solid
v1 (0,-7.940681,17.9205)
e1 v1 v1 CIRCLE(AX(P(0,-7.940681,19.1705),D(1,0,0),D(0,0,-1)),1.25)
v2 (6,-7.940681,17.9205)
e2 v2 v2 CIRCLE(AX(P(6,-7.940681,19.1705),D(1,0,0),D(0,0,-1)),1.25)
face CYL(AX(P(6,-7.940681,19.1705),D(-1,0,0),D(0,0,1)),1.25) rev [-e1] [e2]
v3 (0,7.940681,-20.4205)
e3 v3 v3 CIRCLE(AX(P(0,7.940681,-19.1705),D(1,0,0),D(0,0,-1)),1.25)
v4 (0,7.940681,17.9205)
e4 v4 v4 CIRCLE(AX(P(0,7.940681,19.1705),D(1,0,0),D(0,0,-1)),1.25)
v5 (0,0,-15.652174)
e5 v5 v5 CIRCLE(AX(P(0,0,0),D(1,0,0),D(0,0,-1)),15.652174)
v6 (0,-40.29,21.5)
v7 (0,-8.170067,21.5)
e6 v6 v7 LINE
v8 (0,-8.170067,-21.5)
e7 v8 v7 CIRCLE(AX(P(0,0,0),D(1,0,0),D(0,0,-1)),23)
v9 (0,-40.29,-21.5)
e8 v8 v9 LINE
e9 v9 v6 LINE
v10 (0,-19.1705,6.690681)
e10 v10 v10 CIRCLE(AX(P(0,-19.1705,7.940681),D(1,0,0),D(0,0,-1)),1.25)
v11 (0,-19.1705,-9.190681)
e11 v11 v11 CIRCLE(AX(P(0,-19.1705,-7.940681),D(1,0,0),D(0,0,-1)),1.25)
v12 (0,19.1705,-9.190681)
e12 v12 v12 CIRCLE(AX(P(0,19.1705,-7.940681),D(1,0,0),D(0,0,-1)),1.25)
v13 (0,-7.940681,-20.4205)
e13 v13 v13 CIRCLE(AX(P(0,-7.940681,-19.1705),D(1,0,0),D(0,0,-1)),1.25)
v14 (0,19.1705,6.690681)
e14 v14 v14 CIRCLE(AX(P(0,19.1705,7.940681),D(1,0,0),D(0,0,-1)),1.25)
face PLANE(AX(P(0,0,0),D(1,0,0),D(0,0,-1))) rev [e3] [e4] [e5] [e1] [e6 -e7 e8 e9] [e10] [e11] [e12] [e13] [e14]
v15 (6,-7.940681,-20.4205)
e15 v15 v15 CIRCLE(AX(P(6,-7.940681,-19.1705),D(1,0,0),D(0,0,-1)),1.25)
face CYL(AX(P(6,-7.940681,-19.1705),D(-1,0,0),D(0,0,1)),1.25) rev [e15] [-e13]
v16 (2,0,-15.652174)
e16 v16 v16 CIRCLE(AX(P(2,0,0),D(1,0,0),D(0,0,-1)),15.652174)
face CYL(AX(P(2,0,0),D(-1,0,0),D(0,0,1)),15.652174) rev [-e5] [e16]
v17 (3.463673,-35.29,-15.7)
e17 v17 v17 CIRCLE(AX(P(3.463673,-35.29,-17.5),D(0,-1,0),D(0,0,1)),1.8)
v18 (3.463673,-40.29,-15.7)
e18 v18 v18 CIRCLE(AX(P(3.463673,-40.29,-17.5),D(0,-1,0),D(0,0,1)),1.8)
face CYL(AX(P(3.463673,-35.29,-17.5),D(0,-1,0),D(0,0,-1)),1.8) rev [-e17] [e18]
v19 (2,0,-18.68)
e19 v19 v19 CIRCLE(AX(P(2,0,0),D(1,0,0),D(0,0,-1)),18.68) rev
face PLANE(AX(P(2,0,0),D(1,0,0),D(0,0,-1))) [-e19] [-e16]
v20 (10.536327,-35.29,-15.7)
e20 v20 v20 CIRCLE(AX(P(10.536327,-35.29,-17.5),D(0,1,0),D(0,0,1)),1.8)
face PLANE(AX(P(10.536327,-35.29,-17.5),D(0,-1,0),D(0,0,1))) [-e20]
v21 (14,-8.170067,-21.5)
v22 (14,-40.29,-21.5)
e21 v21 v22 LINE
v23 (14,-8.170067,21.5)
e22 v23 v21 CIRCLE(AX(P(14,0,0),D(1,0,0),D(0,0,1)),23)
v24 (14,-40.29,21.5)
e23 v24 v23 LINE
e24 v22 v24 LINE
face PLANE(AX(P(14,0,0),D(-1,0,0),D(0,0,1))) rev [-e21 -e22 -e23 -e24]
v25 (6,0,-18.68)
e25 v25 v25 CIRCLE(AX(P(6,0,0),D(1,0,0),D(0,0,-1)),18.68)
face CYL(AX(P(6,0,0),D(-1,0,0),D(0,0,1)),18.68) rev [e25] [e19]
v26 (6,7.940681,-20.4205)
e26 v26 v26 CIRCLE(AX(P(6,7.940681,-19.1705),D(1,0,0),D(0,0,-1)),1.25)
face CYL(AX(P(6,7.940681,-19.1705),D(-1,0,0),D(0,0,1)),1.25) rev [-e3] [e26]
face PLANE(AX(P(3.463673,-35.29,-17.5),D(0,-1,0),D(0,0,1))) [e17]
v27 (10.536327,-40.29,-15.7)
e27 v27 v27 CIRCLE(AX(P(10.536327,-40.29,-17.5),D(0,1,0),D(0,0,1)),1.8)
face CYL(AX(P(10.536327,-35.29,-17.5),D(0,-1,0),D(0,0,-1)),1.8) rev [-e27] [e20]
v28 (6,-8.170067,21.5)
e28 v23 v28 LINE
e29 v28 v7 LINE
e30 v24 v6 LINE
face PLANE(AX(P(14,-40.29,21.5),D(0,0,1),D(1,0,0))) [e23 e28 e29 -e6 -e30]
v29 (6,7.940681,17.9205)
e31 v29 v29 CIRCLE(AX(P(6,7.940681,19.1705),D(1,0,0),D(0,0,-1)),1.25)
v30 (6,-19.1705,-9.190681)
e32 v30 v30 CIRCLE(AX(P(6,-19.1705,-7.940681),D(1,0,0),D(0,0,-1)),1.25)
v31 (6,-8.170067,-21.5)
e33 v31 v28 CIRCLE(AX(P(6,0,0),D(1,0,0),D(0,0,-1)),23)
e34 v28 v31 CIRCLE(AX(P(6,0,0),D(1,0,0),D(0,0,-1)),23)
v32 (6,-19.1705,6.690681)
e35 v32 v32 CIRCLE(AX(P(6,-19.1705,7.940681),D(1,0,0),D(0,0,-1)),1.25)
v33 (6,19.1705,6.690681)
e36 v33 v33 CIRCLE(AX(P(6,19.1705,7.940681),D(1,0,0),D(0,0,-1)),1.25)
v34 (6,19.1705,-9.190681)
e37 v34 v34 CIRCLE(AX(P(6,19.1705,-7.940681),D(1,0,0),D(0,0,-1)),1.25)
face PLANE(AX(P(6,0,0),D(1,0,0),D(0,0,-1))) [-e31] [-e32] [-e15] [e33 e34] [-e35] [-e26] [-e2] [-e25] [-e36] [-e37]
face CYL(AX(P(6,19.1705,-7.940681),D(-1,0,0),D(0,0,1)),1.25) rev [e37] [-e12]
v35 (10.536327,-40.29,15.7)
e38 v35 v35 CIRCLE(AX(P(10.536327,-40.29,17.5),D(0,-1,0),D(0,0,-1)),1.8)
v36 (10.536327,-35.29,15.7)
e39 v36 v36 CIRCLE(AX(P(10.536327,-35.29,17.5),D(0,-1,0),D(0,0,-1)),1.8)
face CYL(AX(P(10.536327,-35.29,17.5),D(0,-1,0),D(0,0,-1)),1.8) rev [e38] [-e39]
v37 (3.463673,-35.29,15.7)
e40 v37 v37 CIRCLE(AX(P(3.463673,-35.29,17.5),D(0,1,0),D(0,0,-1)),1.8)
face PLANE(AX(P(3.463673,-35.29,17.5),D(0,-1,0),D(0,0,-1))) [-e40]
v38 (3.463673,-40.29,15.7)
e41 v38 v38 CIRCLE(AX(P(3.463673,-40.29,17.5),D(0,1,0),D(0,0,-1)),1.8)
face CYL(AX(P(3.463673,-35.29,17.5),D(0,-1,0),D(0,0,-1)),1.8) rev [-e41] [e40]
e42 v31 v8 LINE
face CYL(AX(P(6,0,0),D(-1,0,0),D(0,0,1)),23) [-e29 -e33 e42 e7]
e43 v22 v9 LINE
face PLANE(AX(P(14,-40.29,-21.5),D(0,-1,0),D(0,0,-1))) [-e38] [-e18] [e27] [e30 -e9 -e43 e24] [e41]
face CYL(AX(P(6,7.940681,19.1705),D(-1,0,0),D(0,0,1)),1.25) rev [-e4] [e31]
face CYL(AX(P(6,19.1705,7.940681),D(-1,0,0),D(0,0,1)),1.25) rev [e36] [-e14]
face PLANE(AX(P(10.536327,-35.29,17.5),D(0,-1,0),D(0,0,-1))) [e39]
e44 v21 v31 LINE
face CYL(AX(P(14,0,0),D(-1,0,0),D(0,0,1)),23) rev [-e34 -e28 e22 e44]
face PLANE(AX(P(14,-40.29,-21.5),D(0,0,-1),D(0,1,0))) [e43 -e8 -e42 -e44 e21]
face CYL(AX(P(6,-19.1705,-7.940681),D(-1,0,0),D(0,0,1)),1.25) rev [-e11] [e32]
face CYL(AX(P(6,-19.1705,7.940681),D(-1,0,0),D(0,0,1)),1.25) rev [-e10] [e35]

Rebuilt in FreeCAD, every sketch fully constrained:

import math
import FreeCAD as App
import Part
import Sketcher

doc = App.newDocument("Part")
params = doc.addObject("Spreadsheet::Sheet", "Params")
for row, (alias, value) in enumerate([
    ("sketch1_diameter", "37.36 mm"),
    ("pad1_length", "2 mm"),
    ("sketch2_diameter", "46 mm"),
    ("sketch2_diameter2", "2.5 mm"),
    ("sketch2_diameter3", "37.36 mm"),
    ("pad2_length", "6 mm"),
    ("sketch3_radius", "23 mm"),
    ("sketch3_height", "43 mm"),
    ("pad3_length", "14 mm"),
    ("sketch4_diameter", "3.6 mm"),
    ("pocket1_length", "5 mm"),
    ("sketch5_diameter", "3.6 mm"),
    ("pocket2_length", "5 mm"),
], start=1):
    params.set(f"A{row}", alias)
    params.set(f"B{row}", "=" + value)
    params.setAlias(f"B{row}", alias)

body = doc.addObject("PartDesign::Body", "Body")

sketch1 = body.newObject("Sketcher::SketchObject", "Sketch")
sketch1.AttachmentSupport = (doc.getObject("YZ_Plane"), [""])
sketch1.MapMode = "FlatFace"
sketch1.addGeometry([
    Part.Circle(App.Vector(0, 0, 0), App.Vector(0, 0, 1), 19),
    Part.Circle(App.Vector(0, 0, 0), App.Vector(0, 0, 1), 16),
], False)
sketch1.addConstraint([
    Sketcher.Constraint("Coincident", 0, 3, -1, 1),
    Sketcher.Constraint("Coincident", 1, 3, -1, 1),
    Sketcher.Constraint("Diameter", 0, 37.36),
    Sketcher.Constraint("Diameter", 1, 31.304348),
])
sketch1.setExpression("Constraints[2]", "Params.sketch1_diameter")
pad1 = body.newObject("PartDesign::Pad", "Pad")
pad1.Profile = sketch1
pad1.setExpression("Length", "Params.pad1_length")
body2 = doc.addObject("PartDesign::Body", "Body001")

sketch2 = body2.newObject("Sketcher::SketchObject", "Sketch001")
sketch2.AttachmentSupport = (doc.getObject("YZ_Plane001"), [""])
sketch2.MapMode = "FlatFace"
sketch2.addGeometry([
    Part.Circle(App.Vector(0, 0, 0), App.Vector(0, 0, 1), 23),
    Part.Circle(App.Vector(-19.2, 7.9, 0), App.Vector(0, 0, 1), 1.2),
    Part.Circle(App.Vector(-7.9, 19.2, 0), App.Vector(0, 0, 1), 1.2),
    Part.Circle(App.Vector(0, 0, 0), App.Vector(0, 0, 1), 18.7),
    Part.Circle(App.Vector(-19.2, -7.9, 0), App.Vector(0, 0, 1), 1.2),
    Part.Circle(App.Vector(-7.9, -19.2, 0), App.Vector(0, 0, 1), 1.2),
    Part.Circle(App.Vector(7.9, 19.2, 0), App.Vector(0, 0, 1), 1.2),
    Part.Circle(App.Vector(19.2, 7.9, 0), App.Vector(0, 0, 1), 1.2),
    Part.Circle(App.Vector(7.9, -19.2, 0), App.Vector(0, 0, 1), 1.2),
    Part.Circle(App.Vector(19.2, -7.9, 0), App.Vector(0, 0, 1), 1.2),
], False)
sketch2.addConstraint([
    Sketcher.Constraint("Coincident", 0, 3, -1, 1),
    Sketcher.Constraint("Coincident", 3, 3, -1, 1),
    Sketcher.Constraint("Equal", 1, 2),
    Sketcher.Constraint("Equal", 2, 4),
    Sketcher.Constraint("Equal", 4, 5),
    Sketcher.Constraint("Equal", 5, 6),
    Sketcher.Constraint("Equal", 6, 7),
    Sketcher.Constraint("Equal", 7, 8),
    Sketcher.Constraint("Equal", 8, 9),
    Sketcher.Constraint("Symmetric", 5, 3, 6, 3, -1, 1),
    Sketcher.Constraint("Symmetric", 4, 3, 7, 3, -1, 1),
    Sketcher.Constraint("Symmetric", 2, 3, 8, 3, -1, 1),
    Sketcher.Constraint("Symmetric", 1, 3, 9, 3, -1, 1),
    Sketcher.Constraint("Symmetric", 2, 3, 6, 3, -2),
    Sketcher.Constraint("Symmetric", 1, 3, 7, 3, -2),
    Sketcher.Constraint("Diameter", 0, 46.0),
    Sketcher.Constraint("Diameter", 1, 2.5),
    Sketcher.Constraint("Diameter", 3, 37.36),
    Sketcher.Constraint("DistanceY", 5, 3, 2, 3, 38.341001),
    Sketcher.Constraint("DistanceX", 1, 3, 7, 3, 38.341001),
    Sketcher.Constraint("DistanceY", -1, 1, 1, 3, 7.940681),
    Sketcher.Constraint("DistanceX", 2, 3, -1, 1, 7.940681),
])
sketch2.setExpression("Constraints[15]", "Params.sketch2_diameter")
sketch2.setExpression("Constraints[16]", "Params.sketch2_diameter2")
sketch2.setExpression("Constraints[17]", "Params.sketch2_diameter3")
pad2 = body2.newObject("PartDesign::Pad", "Pad001")
pad2.Profile = sketch2
pad2.setExpression("Length", "Params.pad2_length")
doc.recompute()

boolean = body.newObject("PartDesign::Boolean", "Boolean")
boolean.Type = "Fuse"
boolean.addObjects([body2])

sketch3 = body.newObject("Sketcher::SketchObject", "Sketch002")
sketch3.AttachmentSupport = (doc.getObject("YZ_Plane"), [""])
sketch3.MapMode = "FlatFace"
sketch3.addGeometry([
    Part.LineSegment(App.Vector(-40, -22, 0), App.Vector(-40, 22, 0)),
    Part.LineSegment(App.Vector(-40, 22, 0), App.Vector(-8, 22, 0)),
    Part.ArcOfCircle(Part.Circle(App.Vector(0, 0, 0), App.Vector(0, 0, 1), 23), math.radians(111), math.radians(249)),
    Part.LineSegment(App.Vector(-8, -22, 0), App.Vector(-40, -22, 0)),
], False)
sketch3.addConstraint([
    Sketcher.Constraint("Coincident", 0, 2, 1, 1),
    Sketcher.Constraint("Coincident", 1, 2, 2, 1),
    Sketcher.Constraint("Coincident", 2, 2, 3, 1),
    Sketcher.Constraint("Coincident", 3, 2, 0, 1),
    Sketcher.Constraint("Vertical", 0),
    Sketcher.Constraint("Horizontal", 1),
    Sketcher.Constraint("Horizontal", 3),
    Sketcher.Constraint("Coincident", 2, 3, -1, 1),
    Sketcher.Constraint("Vertical", 1, 2, 2, 2),
    Sketcher.Constraint("Radius", 2, 23.0),
    Sketcher.Constraint("DistanceY", 0, 1, 0, 2, 43.0),
    Sketcher.Constraint("DistanceX", 0, 2, -1, 1, 40.29),
])
sketch3.setExpression("Constraints[9]", "Params.sketch3_radius")
sketch3.setExpression("Constraints[10]", "Params.sketch3_height")
pad3 = body.newObject("PartDesign::Pad", "Pad002")
pad3.Profile = sketch3
pad3.setExpression("Length", "Params.pad3_length")

sketch4 = body.newObject("Sketcher::SketchObject", "Sketch003")
sketch4.AttachmentSupport = (doc.getObject("XZ_Plane"), [""])
sketch4.MapMode = "FlatFace"
sketch4.AttachmentOffset = App.Placement(App.Vector(0, 0, 40.29), App.Rotation())
sketch4.addGeometry(Part.Circle(App.Vector(10.5, 17.5, 0), App.Vector(0, 0, 1), 1.8), False)
sketch4.addConstraint([
    Sketcher.Constraint("Diameter", 0, 3.6),
    Sketcher.Constraint("DistanceY", -1, 1, 0, 3, 17.5),
    Sketcher.Constraint("DistanceX", -1, 1, 0, 3, 10.536327),
])
sketch4.setExpression("Constraints[0]", "Params.sketch4_diameter")
pocket1 = body.newObject("PartDesign::Pocket", "Pocket")
pocket1.Profile = sketch4
pocket1.setExpression("Length", "Params.pocket1_length")
doc.recompute()

mirrored = body.newObject("PartDesign::Mirrored", "Mirrored")
mirrored.Originals = [pocket1]
mirrored.MirrorPlane = (doc.getObject("XY_Plane"), [""])
body.Tip = mirrored
doc.recompute()

datumplane = body.newObject("PartDesign::Plane", "DatumPlane")
datumplane.AttachmentSupport = (doc.getObject("YZ_Plane"), [""])
datumplane.MapMode = "FlatFace"
datumplane.AttachmentOffset = App.Placement(App.Vector(0, 0, 7), App.Rotation())
mirrored2 = body.newObject("PartDesign::Mirrored", "Mirrored001")
mirrored2.Originals = [pocket1]
mirrored2.MirrorPlane = (datumplane, [""])
body.Tip = mirrored2

sketch5 = body.newObject("Sketcher::SketchObject", "Sketch004")
sketch5.AttachmentSupport = (doc.getObject("XZ_Plane"), [""])
sketch5.MapMode = "FlatFace"
sketch5.AttachmentOffset = App.Placement(App.Vector(0, 0, 40.29), App.Rotation())
sketch5.addGeometry(Part.Circle(App.Vector(3.5, -17.5, 0), App.Vector(0, 0, 1), 1.8), False)
sketch5.addConstraint([
    Sketcher.Constraint("Diameter", 0, 3.6),
    Sketcher.Constraint("DistanceY", 0, 3, -1, 1, 17.5),
    Sketcher.Constraint("DistanceX", -1, 1, 0, 3, 3.463673),
])
sketch5.setExpression("Constraints[0]", "Params.sketch5_diameter")
pocket2 = body.newObject("PartDesign::Pocket", "Pocket001")
pocket2.Profile = sketch5
pocket2.setExpression("Length", "Params.pocket2_length")

doc.recompute()
